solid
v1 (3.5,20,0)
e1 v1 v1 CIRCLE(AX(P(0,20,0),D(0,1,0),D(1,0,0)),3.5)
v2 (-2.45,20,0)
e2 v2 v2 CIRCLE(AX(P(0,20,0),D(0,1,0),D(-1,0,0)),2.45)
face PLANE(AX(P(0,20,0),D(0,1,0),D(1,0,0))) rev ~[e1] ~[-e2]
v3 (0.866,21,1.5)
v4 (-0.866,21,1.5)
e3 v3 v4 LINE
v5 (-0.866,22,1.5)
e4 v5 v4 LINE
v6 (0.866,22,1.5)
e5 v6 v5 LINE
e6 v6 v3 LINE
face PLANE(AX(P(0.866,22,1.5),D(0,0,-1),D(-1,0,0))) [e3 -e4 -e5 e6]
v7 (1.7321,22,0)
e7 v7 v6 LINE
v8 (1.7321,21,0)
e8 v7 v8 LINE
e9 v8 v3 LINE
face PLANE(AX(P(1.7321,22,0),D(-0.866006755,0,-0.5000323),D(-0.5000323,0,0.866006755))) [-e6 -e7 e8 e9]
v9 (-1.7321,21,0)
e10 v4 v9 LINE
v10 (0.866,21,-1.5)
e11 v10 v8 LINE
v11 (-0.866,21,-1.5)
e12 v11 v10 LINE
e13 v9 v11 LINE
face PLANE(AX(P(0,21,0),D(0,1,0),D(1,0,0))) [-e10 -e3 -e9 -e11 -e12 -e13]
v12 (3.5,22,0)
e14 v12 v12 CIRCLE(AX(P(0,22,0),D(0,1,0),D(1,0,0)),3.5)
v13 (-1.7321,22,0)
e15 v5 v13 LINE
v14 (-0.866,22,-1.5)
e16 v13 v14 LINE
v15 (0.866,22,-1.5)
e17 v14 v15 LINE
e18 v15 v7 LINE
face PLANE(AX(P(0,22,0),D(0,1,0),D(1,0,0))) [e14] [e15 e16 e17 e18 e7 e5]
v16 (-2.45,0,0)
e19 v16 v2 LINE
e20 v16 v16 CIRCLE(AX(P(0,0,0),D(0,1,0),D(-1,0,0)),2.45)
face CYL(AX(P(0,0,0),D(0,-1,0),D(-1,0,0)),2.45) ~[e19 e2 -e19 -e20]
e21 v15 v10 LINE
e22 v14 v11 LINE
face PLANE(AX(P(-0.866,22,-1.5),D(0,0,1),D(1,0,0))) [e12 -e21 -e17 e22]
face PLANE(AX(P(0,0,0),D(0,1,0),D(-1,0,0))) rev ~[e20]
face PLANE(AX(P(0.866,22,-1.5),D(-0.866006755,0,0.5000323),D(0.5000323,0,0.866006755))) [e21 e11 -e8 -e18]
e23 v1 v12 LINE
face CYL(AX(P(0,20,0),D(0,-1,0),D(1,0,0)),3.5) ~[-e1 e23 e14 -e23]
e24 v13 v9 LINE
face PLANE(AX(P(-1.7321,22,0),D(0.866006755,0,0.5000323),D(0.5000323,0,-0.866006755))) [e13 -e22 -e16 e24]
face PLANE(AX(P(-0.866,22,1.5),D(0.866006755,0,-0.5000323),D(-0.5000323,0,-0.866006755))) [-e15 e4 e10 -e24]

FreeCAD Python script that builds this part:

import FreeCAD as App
import Part
import Sketcher


def add_polygon(sketch, points):
    """Adds a closed chain of lines whose ends are joined by coincident constraints."""
    first, n = sketch.GeometryCount, len(points)
    for a, b in zip(points, points[1:] + points[:1]):
        sketch.addGeometry(Part.LineSegment(App.Vector(*a, 0), App.Vector(*b, 0)), False)
    for i in range(n):
        sketch.addConstraint(Sketcher.Constraint("Coincident", first + i, 2, first + (i + 1) % n, 1))

doc = App.newDocument("Part")
params = doc.addObject("Spreadsheet::Sheet", "Params")
for row, (alias, value) in enumerate([
    ("sketch1_diameter", "4.9 mm"),
    ("pad1_length", "20 mm"),
    ("sketch2_diameter", "7 mm"),
    ("pad2_length", "2 mm"),
    ("pocket1_length", "1 mm"),
], start=1):
    params.set(f"A{row}", alias)
    params.set(f"B{row}", "=" + value)
    params.setAlias(f"B{row}", alias)

body = doc.addObject("PartDesign::Body", "Body")

# Sketch on XZ plane
sketch1 = body.newObject("Sketcher::SketchObject", "Sketch")
sketch1.AttachmentSupport = (doc.getObject("XZ_Plane"), [""])
sketch1.MapMode = "FlatFace"
sketch1.addGeometry(Part.Circle(App.Vector(0, 0, 0), App.Vector(0, 0, 1), 2.5), False)
sketch1.addConstraint([
    Sketcher.Constraint("Coincident", 0, 3, -1, 1),
    Sketcher.Constraint("Diameter", 0, 4.9),
])
sketch1.setExpression("Constraints[1]", "Params.sketch1_diameter")
pad1 = body.newObject("PartDesign::Pad", "Pad")
pad1.Profile = sketch1
pad1.setExpression("Length", "Params.pad1_length")
pad1.Reversed = True

# Sketch on XZ plane
sketch2 = body.newObject("Sketcher::SketchObject", "Sketch001")
sketch2.AttachmentSupport = (doc.getObject("XZ_Plane"), [""])
sketch2.MapMode = "FlatFace"
sketch2.AttachmentOffset = App.Placement(App.Vector(0, 0, -20), App.Rotation())
sketch2.addGeometry(Part.Circle(App.Vector(0, 0, 0), App.Vector(0, 0, 1), 3.5), False)
sketch2.addConstraint([
    Sketcher.Constraint("Coincident", 0, 3, -1, 1),
    Sketcher.Constraint("Diameter", 0, 7.0),
])
sketch2.setExpression("Constraints[1]", "Params.sketch2_diameter")
pad2 = body.newObject("PartDesign::Pad", "Pad001")
pad2.Profile = sketch2
pad2.setExpression("Length", "Params.pad2_length")
pad2.Reversed = True

# Sketch on XZ plane
sketch3 = body.newObject("Sketcher::SketchObject", "Sketch002")
sketch3.AttachmentSupport = (doc.getObject("XZ_Plane"), [""])
sketch3.MapMode = "FlatFace"
sketch3.AttachmentOffset = App.Placement(App.Vector(0, 0, -22), App.Rotation())
add_polygon(sketch3, [(1.7, 0), (0.9, -1.5), (-0.9, -1.5), (-1.7, 0), (-0.9, 1.5), (0.9, 1.5)])  # lines 0-5
sketch3.addConstraint([
    Sketcher.Constraint("Horizontal", 1),
    Sketcher.Constraint("Horizontal", 4),
    Sketcher.Constraint("Symmetric", 0, 2, 3, 2, -1, 1),
    Sketcher.Constraint("Symmetric", 2, 2, 5, 2, -1, 1),
    Sketcher.Constraint("PointOnObject", 2, 2, -1),
    Sketcher.Constraint("Parallel", 2, 5),
    Sketcher.Constraint("Vertical", 1, 2, 3, 2),
    Sketcher.Constraint("DistanceY", 1, 2, 3, 2, 3.0),
    Sketcher.Constraint("DistanceX", 1, 2, 1, 1, 1.732),
    Sketcher.Constraint("Distance", 0, 1.732),
])
pocket1 = body.newObject("PartDesign::Pocket", "Pocket")
pocket1.Profile = sketch3
pocket1.setExpression("Length", "Params.pocket1_length")
pocket1.Reversed = True

doc.recompute()
